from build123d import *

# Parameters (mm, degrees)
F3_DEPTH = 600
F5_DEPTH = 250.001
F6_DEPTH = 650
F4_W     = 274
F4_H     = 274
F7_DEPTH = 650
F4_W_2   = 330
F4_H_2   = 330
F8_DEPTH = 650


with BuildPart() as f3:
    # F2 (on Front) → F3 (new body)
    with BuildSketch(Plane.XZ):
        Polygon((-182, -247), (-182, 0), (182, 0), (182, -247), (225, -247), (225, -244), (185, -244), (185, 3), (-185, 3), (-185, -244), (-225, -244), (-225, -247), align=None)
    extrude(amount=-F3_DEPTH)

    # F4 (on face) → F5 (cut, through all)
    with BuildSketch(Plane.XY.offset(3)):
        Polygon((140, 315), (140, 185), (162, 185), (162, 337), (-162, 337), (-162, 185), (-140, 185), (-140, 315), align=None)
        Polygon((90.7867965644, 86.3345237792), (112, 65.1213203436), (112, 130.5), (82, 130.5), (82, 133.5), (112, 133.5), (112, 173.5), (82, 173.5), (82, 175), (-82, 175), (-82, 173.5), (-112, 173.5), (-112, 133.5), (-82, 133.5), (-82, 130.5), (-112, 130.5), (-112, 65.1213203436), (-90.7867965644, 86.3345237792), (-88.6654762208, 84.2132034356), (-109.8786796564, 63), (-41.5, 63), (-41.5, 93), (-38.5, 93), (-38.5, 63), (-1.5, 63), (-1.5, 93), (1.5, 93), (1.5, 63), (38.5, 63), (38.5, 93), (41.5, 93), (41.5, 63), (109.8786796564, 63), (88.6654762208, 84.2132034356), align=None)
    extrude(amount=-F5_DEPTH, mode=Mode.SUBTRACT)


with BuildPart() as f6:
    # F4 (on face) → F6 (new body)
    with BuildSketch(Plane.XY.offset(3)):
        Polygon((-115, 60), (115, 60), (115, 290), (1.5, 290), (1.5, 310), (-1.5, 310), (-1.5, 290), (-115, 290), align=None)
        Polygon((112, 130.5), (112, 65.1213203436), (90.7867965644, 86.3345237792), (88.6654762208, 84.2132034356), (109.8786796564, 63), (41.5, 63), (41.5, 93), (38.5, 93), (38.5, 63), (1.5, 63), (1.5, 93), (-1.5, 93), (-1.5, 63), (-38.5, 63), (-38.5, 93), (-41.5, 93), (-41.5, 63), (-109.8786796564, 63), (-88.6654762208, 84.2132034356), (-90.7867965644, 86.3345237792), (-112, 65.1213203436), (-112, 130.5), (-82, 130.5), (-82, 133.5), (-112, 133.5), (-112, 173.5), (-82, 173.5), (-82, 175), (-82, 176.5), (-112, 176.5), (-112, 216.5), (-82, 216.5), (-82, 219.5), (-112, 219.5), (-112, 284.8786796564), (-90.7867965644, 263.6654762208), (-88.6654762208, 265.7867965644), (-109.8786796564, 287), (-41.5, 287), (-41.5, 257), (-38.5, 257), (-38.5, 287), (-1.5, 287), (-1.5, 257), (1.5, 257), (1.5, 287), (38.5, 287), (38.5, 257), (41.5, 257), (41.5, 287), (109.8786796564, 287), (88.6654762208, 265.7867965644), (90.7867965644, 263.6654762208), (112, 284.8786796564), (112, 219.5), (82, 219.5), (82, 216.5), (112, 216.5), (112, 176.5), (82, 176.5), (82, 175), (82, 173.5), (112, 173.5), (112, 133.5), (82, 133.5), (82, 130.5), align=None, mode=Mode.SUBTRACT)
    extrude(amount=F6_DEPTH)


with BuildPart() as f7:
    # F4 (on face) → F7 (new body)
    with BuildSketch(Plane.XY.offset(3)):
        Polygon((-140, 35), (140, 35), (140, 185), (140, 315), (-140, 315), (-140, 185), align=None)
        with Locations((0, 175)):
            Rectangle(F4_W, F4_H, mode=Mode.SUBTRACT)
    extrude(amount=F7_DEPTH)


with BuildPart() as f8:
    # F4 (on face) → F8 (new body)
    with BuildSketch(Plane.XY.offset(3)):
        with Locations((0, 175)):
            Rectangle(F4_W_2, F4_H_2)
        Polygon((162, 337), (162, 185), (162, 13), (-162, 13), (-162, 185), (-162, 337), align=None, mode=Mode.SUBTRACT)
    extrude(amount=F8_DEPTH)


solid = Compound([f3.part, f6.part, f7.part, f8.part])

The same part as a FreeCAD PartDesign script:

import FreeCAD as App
import Part
import Sketcher

V = App.Vector

doc = App.newDocument("Part")
body = doc.addObject("PartDesign::Body", "Body")

# Sketch on XZ plane
sketch1 = body.newObject("Sketcher::SketchObject", "Sketch")
sketch1.AttachmentSupport = (doc.getObject("XZ_Plane"), [""])
sketch1.MapMode = "FlatFace"
sketch1.addGeometry(Part.LineSegment(V(-182, -247, 0), V(-182, 0, 0)), False)
sketch1.addGeometry(Part.LineSegment(V(-182, 0, 0), V(182, 0, 0)), False)
sketch1.addGeometry(Part.LineSegment(V(182, 0, 0), V(182, -247, 0)), False)
sketch1.addGeometry(Part.LineSegment(V(182, -247, 0), V(225, -247, 0)), False)
sketch1.addGeometry(Part.LineSegment(V(225, -247, 0), V(225, -244, 0)), False)
sketch1.addGeometry(Part.LineSegment(V(225, -244, 0), V(185, -244, 0)), False)
sketch1.addGeometry(Part.LineSegment(V(185, -244, 0), V(185, 3, 0)), False)
sketch1.addGeometry(Part.LineSegment(V(185, 3, 0), V(-185, 3, 0)), False)
sketch1.addGeometry(Part.LineSegment(V(-185, 3, 0), V(-185, -244, 0)), False)
sketch1.addGeometry(Part.LineSegment(V(-185, -244, 0), V(-225, -244, 0)), False)
sketch1.addGeometry(Part.LineSegment(V(-225, -244, 0), V(-225, -247, 0)), False)
sketch1.addGeometry(Part.LineSegment(V(-225, -247, 0), V(-182, -247, 0)), False)
sketch1.addConstraint(Sketcher.Constraint("Coincident", 0, 2, 1, 1))
sketch1.addConstraint(Sketcher.Constraint("Coincident", 1, 2, 2, 1))
sketch1.addConstraint(Sketcher.Constraint("Coincident", 2, 2, 3, 1))
sketch1.addConstraint(Sketcher.Constraint("Coincident", 3, 2, 4, 1))
sketch1.addConstraint(Sketcher.Constraint("Coincident", 4, 2, 5, 1))
sketch1.addConstraint(Sketcher.Constraint("Coincident", 5, 2, 6, 1))
sketch1.addConstraint(Sketcher.Constraint("Coincident", 6, 2, 7, 1))
sketch1.addConstraint(Sketcher.Constraint("Coincident", 7, 2, 8, 1))
sketch1.addConstraint(Sketcher.Constraint("Coincident", 8, 2, 9, 1))
sketch1.addConstraint(Sketcher.Constraint("Coincident", 9, 2, 10, 1))
sketch1.addConstraint(Sketcher.Constraint("Coincident", 10, 2, 11, 1))
sketch1.addConstraint(Sketcher.Constraint("Coincident", 11, 2, 0, 1))
sketch1.addConstraint(Sketcher.Constraint("Vertical", 0))
sketch1.addConstraint(Sketcher.Constraint("Horizontal", 1))
sketch1.addConstraint(Sketcher.Constraint("Vertical", 2))
sketch1.addConstraint(Sketcher.Constraint("Horizontal", 3))
sketch1.addConstraint(Sketcher.Constraint("Vertical", 4))
sketch1.addConstraint(Sketcher.Constraint("Horizontal", 5))
sketch1.addConstraint(Sketcher.Constraint("Vertical", 6))
sketch1.addConstraint(Sketcher.Constraint("Horizontal", 7))
sketch1.addConstraint(Sketcher.Constraint("Vertical", 8))
sketch1.addConstraint(Sketcher.Constraint("Horizontal", 9))
sketch1.addConstraint(Sketcher.Constraint("Vertical", 10))
sketch1.addConstraint(Sketcher.Constraint("Horizontal", 11))
sketch1.addConstraint(Sketcher.Constraint("Symmetric", 0, 2, 1, 2, -1, 1))
sketch1.addConstraint(Sketcher.Constraint("Symmetric", 5, 2, 8, 2, -2))
sketch1.addConstraint(Sketcher.Constraint("Symmetric", 3, 2, 10, 2, -2))
sketch1.addConstraint(Sketcher.Constraint("Equal", 2, 6))
sketch1.addConstraint(Sketcher.Constraint("DistanceX", 1, 1, 1, 2, 364.0))
sketch1.addConstraint(Sketcher.Constraint("DistanceX", 3, 1, 3, 2, 43.0))
sketch1.addConstraint(Sketcher.Constraint("DistanceX", 5, 2, 5, 1, 40.0))
sketch1.addConstraint(Sketcher.Constraint("DistanceY", 0, 1, 0, 2, 247.0))
sketch1.addConstraint(Sketcher.Constraint("DistanceY", 4, 1, 4, 2, 3.0))
pad1 = body.newObject("PartDesign::Pad", "Pad")
pad1.Profile = sketch1
pad1.Length = 600
pad1.Reversed = True

# Sketch on XY plane
sketch2 = body.newObject("Sketcher::SketchObject", "Sketch001")
sketch2.AttachmentSupport = (doc.getObject("XY_Plane"), [""])
sketch2.MapMode = "FlatFace"
sketch2.AttachmentOffset = App.Placement(V(0, 0, 3), App.Rotation())
sketch2.addGeometry(Part.LineSegment(V(140, 315, 0), V(140, 185, 0)), False)
sketch2.addGeometry(Part.LineSegment(V(140, 185, 0), V(162, 185, 0)), False)
sketch2.addGeometry(Part.LineSegment(V(162, 185, 0), V(162, 337, 0)), False)
sketch2.addGeometry(Part.LineSegment(V(162, 337, 0), V(-162, 337, 0)), False)
sketch2.addGeometry(Part.LineSegment(V(-162, 337, 0), V(-162, 185, 0)), False)
sketch2.addGeometry(Part.LineSegment(V(-162, 185, 0), V(-140, 185, 0)), False)
sketch2.addGeometry(Part.LineSegment(V(-140, 185, 0), V(-140, 315, 0)), False)
sketch2.addGeometry(Part.LineSegment(V(-140, 315, 0), V(140, 315, 0)), False)
sketch2.addGeometry(Part.LineSegment(V(90.8, 86.3, 0), V(112, 65.1, 0)), False)
sketch2.addGeometry(Part.LineSegment(V(112, 65.1, 0), V(112, 130.5, 0)), False)
sketch2.addGeometry(Part.LineSegment(V(112, 130.5, 0), V(82, 130.5, 0)), False)
sketch2.addGeometry(Part.LineSegment(V(82, 130.5, 0), V(82, 133.5, 0)), False)
sketch2.addGeometry(Part.LineSegment(V(82, 133.5, 0), V(112, 133.5, 0)), False)
sketch2.addGeometry(Part.LineSegment(V(112, 133.5, 0), V(112, 173.5, 0)), False)
sketch2.addGeometry(Part.LineSegment(V(112, 173.5, 0), V(82, 173.5, 0)), False)
sketch2.addGeometry(Part.LineSegment(V(82, 173.5, 0), V(82, 175, 0)), False)
sketch2.addGeometry(Part.LineSegment(V(82, 175, 0), V(-82, 175, 0)), False)
sketch2.addGeometry(Part.LineSegment(V(-82, 175, 0), V(-82, 173.5, 0)), False)
sketch2.addGeometry(Part.LineSegment(V(-82, 173.5, 0), V(-112, 173.5, 0)), False)
sketch2.addGeometry(Part.LineSegment(V(-112, 173.5, 0), V(-112, 133.5, 0)), False)
sketch2.addGeometry(Part.LineSegment(V(-112, 133.5, 0), V(-82, 133.5, 0)), False)
sketch2.addGeometry(Part.LineSegment(V(-82, 133.5, 0), V(-82, 130.5, 0)), False)
sketch2.addGeometry(Part.LineSegment(V(-82, 130.5, 0), V(-112, 130.5, 0)), False)
sketch2.addGeometry(Part.LineSegment(V(-112, 130.5, 0), V(-112, 65.1, 0)), False)
sketch2.addGeometry(Part.LineSegment(V(-112, 65.1, 0), V(-90.8, 86.3, 0)), False)
sketch2.addGeometry(Part.LineSegment(V(-90.8, 86.3, 0), V(-88.7, 84.2, 0)), False)
sketch2.addGeometry(Part.LineSegment(V(-88.7, 84.2, 0), V(-109.9, 63, 0)), False)
sketch2.addGeometry(Part.LineSegment(V(-109.9, 63, 0), V(-41.5, 63, 0)), False)
sketch2.addGeometry(Part.LineSegment(V(-41.5, 63, 0), V(-41.5, 93, 0)), False)
sketch2.addGeometry(Part.LineSegment(V(-41.5, 93, 0), V(-38.5, 93, 0)), False)
sketch2.addGeometry(Part.LineSegment(V(-38.5, 93, 0), V(-38.5, 63, 0)), False)
sketch2.addGeometry(Part.LineSegment(V(-38.5, 63, 0), V(-1.5, 63, 0)), False)
sketch2.addGeometry(Part.LineSegment(V(-1.5, 63, 0), V(-1.5, 93, 0)), False)
sketch2.addGeometry(Part.LineSegment(V(-1.5, 93, 0), V(1.5, 93, 0)), False)
sketch2.addGeometry(Part.LineSegment(V(1.5, 93, 0), V(1.5, 63, 0)), False)
sketch2.addGeometry(Part.LineSegment(V(1.5, 63, 0), V(38.5, 63, 0)), False)
sketch2.addGeometry(Part.LineSegment(V(38.5, 63, 0), V(38.5, 93, 0)), False)
sketch2.addGeometry(Part.LineSegment(V(38.5, 93, 0), V(41.5, 93, 0)), False)
sketch2.addGeometry(Part.LineSegment(V(41.5, 93, 0), V(41.5, 63, 0)), False)
sketch2.addGeometry(Part.LineSegment(V(41.5, 63, 0), V(109.9, 63, 0)), False)
sketch2.addGeometry(Part.LineSegment(V(109.9, 63, 0), V(88.7, 84.2, 0)), False)
sketch2.addGeometry(Part.LineSegment(V(88.7, 84.2, 0), V(90.8, 86.3, 0)), False)
sketch2.addConstraint(Sketcher.Constraint("Coincident", 0, 2, 1, 1))
sketch2.addConstraint(Sketcher.Constraint("Coincident", 1, 2, 2, 1))
sketch2.addConstraint(Sketcher.Constraint("Coincident", 2, 2, 3, 1))
sketch2.addConstraint(Sketcher.Constraint("Coincident", 3, 2, 4, 1))
sketch2.addConstraint(Sketcher.Constraint("Coincident", 4, 2, 5, 1))
sketch2.addConstraint(Sketcher.Constraint("Coincident", 5, 2, 6, 1))
sketch2.addConstraint(Sketcher.Constraint("Coincident", 6, 2, 7, 1))
sketch2.addConstraint(Sketcher.Constraint("Coincident", 7, 2, 0, 1))
sketch2.addConstraint(Sketcher.Constraint("Coincident", 8, 2, 9, 1))
sketch2.addConstraint(Sketcher.Constraint("Coincident", 9, 2, 10, 1))
sketch2.addConstraint(Sketcher.Constraint("Coincident", 10, 2, 11, 1))
sketch2.addConstraint(Sketcher.Constraint("Coincident", 11, 2, 12, 1))
sketch2.addConstraint(Sketcher.Constraint("Coincident", 12, 2, 13, 1))
sketch2.addConstraint(Sketcher.Constraint("Coincident", 13, 2, 14, 1))
sketch2.addConstraint(Sketcher.Constraint("Coincident", 14, 2, 15, 1))
sketch2.addConstraint(Sketcher.Constraint("Coincident", 15, 2, 16, 1))
sketch2.addConstraint(Sketcher.Constraint("Coincident", 16, 2, 17, 1))
sketch2.addConstraint(Sketcher.Constraint("Coincident", 17, 2, 18, 1))
sketch2.addConstraint(Sketcher.Constraint("Coincident", 18, 2, 19, 1))
sketch2.addConstraint(Sketcher.Constraint("Coincident", 19, 2, 20, 1))
sketch2.addConstraint(Sketcher.Constraint("Coincident", 20, 2, 21, 1))
sketch2.addConstraint(Sketcher.Constraint("Coincident", 21, 2, 22, 1))
sketch2.addConstraint(Sketcher.Constraint("Coincident", 22, 2, 23, 1))
sketch2.addConstraint(Sketcher.Constraint("Coincident", 23, 2, 24, 1))
sketch2.addConstraint(Sketcher.Constraint("Coincident", 24, 2, 25, 1))
sketch2.addConstraint(Sketcher.Constraint("Coincident", 25, 2, 26, 1))
sketch2.addConstraint(Sketcher.Constraint("Coincident", 26, 2, 27, 1))
sketch2.addConstraint(Sketcher.Constraint("Coincident", 27, 2, 28, 1))
sketch2.addConstraint(Sketcher.Constraint("Coincident", 28, 2, 29, 1))
sketch2.addConstraint(Sketcher.Constraint("Coincident", 29, 2, 30, 1))
sketch2.addConstraint(Sketcher.Constraint("Coincident", 30, 2, 31, 1))
sketch2.addConstraint(Sketcher.Constraint("Coincident", 31, 2, 32, 1))
sketch2.addConstraint(Sketcher.Constraint("Coincident", 32, 2, 33, 1))
sketch2.addConstraint(Sketcher.Constraint("Coincident", 33, 2, 34, 1))
sketch2.addConstraint(Sketcher.Constraint("Coincident", 34, 2, 35, 1))
sketch2.addConstraint(Sketcher.Constraint("Coincident", 35, 2, 36, 1))
sketch2.addConstraint(Sketcher.Constraint("Coincident", 36, 2, 37, 1))
sketch2.addConstraint(Sketcher.Constraint("Coincident", 37, 2, 38, 1))
sketch2.addConstraint(Sketcher.Constraint("Coincident", 38, 2, 39, 1))
sketch2.addConstraint(Sketcher.Constraint("Coincident", 39, 2, 40, 1))
sketch2.addConstraint(Sketcher.Constraint("Coincident", 40, 2, 41, 1))
sketch2.addConstraint(Sketcher.Constraint("Coincident", 41, 2, 8, 1))
sketch2.addConstraint(Sketcher.Constraint("Vertical", 0))
sketch2.addConstraint(Sketcher.Constraint("Horizontal", 1))
sketch2.addConstraint(Sketcher.Constraint("Vertical", 2))
sketch2.addConstraint(Sketcher.Constraint("Horizontal", 3))
sketch2.addConstraint(Sketcher.Constraint("Vertical", 4))
sketch2.addConstraint(Sketcher.Constraint("Horizontal", 5))
sketch2.addConstraint(Sketcher.Constraint("Vertical", 6))
sketch2.addConstraint(Sketcher.Constraint("Horizontal", 7))
sketch2.addConstraint(Sketcher.Constraint("Vertical", 9))
sketch2.addConstraint(Sketcher.Constraint("Horizontal", 10))
sketch2.addConstraint(Sketcher.Constraint("Vertical", 11))
sketch2.addConstraint(Sketcher.Constraint("Horizontal", 12))
sketch2.addConstraint(Sketcher.Constraint("Vertical", 13))
sketch2.addConstraint(Sketcher.Constraint("Horizontal", 14))
sketch2.addConstraint(Sketcher.Constraint("Vertical", 15))
sketch2.addConstraint(Sketcher.Constraint("Horizontal", 16))
sketch2.addConstraint(Sketcher.Constraint("Vertical", 17))
sketch2.addConstraint(Sketcher.Constraint("Horizontal", 18))
sketch2.addConstraint(Sketcher.Constraint("Vertical", 19))
sketch2.addConstraint(Sketcher.Constraint("Horizontal", 20))
sketch2.addConstraint(Sketcher.Constraint("Vertical", 21))
sketch2.addConstraint(Sketcher.Constraint("Horizontal", 22))
sketch2.addConstraint(Sketcher.Constraint("Vertical", 23))
sketch2.addConstraint(Sketcher.Constraint("Horizontal", 27))
sketch2.addConstraint(Sketcher.Constraint("Vertical", 28))
sketch2.addConstraint(Sketcher.Constraint("Horizontal", 29))
sketch2.addConstraint(Sketcher.Constraint("Vertical", 30))
sketch2.addConstraint(Sketcher.Constraint("Horizontal", 31))
sketch2.addConstraint(Sketcher.Constraint("Vertical", 32))
sketch2.addConstraint(Sketcher.Constraint("Horizontal", 33))
sketch2.addConstraint(Sketcher.Constraint("Vertical", 34))
sketch2.addConstraint(Sketcher.Constraint("Horizontal", 35))
sketch2.addConstraint(Sketcher.Constraint("Vertical", 36))
sketch2.addConstraint(Sketcher.Constraint("Horizontal", 37))
sketch2.addConstraint(Sketcher.Constraint("Vertical", 38))
sketch2.addConstraint(Sketcher.Constraint("Horizontal", 39))
sketch2.addConstraint(Sketcher.Constraint("Symmetric", 1, 2, 4, 2, -2))
sketch2.addConstraint(Sketcher.Constraint("Symmetric", 14, 2, 17, 2, -2))
sketch2.addConstraint(Sketcher.Constraint("Symmetric", 12, 2, 19, 2, -2))
sketch2.addConstraint(Sketcher.Constraint("Symmetric", 10, 2, 21, 2, -2))
sketch2.addConstraint(Sketcher.Constraint("Symmetric", 8, 2, 23, 2, -2))
sketch2.addConstraint(Sketcher.Constraint("Symmetric", 31, 2, 34, 2, -2))
sketch2.addConstraint(Sketcher.Constraint("Symmetric", 29, 2, 36, 2, -2))
sketch2.addConstraint(Sketcher.Constraint("Symmetric", 27, 2, 38, 2, -2))
sketch2.addConstraint(Sketcher.Constraint("Symmetric", 25, 2, 40, 2, -2))
sketch2.addConstraint(Sketcher.Constraint("Symmetric", 24, 2, 41, 2, -2))
sketch2.addConstraint(Sketcher.Constraint("Perpendicular", 8, 24))
sketch2.addConstraint(Sketcher.Constraint("Perpendicular", 24, 25))
sketch2.addConstraint(Sketcher.Constraint("Perpendicular", 25, 26))
sketch2.addConstraint(Sketcher.Constraint("Perpendicular", 26, 40))
sketch2.addConstraint(Sketcher.Constraint("Horizontal", 27, 2, 30, 2))
sketch2.addConstraint(Sketcher.Constraint("Horizontal", 29, 2, 32, 2))
sketch2.addConstraint(Sketcher.Constraint("Vertical", 9, 2, 12, 2))
sketch2.addConstraint(Sketcher.Constraint("Vertical", 11, 2, 14, 2))
sketch2.addConstraint(Sketcher.Constraint("Equal", 1, 5))
sketch2.addConstraint(Sketcher.Constraint("Equal", 29, 33))
sketch2.addConstraint(Sketcher.Constraint("Equal", 37, 11))
sketch2.addConstraint(Sketcher.Constraint("Equal", 22, 28))
sketch2.addConstraint(Sketcher.Constraint("Equal", 24, 26))
sketch2.addConstraint(Sketcher.Constraint("DistanceX", 1, 1, 1, 2, 22.0))
sketch2.addConstraint(Sketcher.Constraint("DistanceX", 3, 2, 3, 1, 324.0))
sketch2.addConstraint(Sketcher.Constraint("DistanceX", 10, 2, 10, 1, 30.0))
sketch2.addConstraint(Sketcher.Constraint("DistanceX", 16, 2, 16, 1, 164.0))
sketch2.addConstraint(Sketcher.Constraint("DistanceX", 29, 1, 29, 2, 3.0))
sketch2.addConstraint(Sketcher.Constraint("DistanceX", 31, 1, 31, 2, 37.0))
sketch2.addConstraint(Sketcher.Constraint("DistanceY", 0, 2, 0, 1, 130.0))
sketch2.addConstraint(Sketcher.Constraint("DistanceY", 2, 1, 2, 2, 152.0))
sketch2.addConstraint(Sketcher.Constraint("DistanceY", 13, 1, 13, 2, 40.0))
sketch2.addConstraint(Sketcher.Constraint("Distance", 8, 30.0))
sketch2.addConstraint(Sketcher.Constraint("Distance", 25, 3.0))
sketch2.addConstraint(Sketcher.Constraint("DistanceY", 15, 1, 15, 2, 1.5))
sketch2.addConstraint(Sketcher.Constraint("DistanceY", -1, 1, 0, 2, 185.0))
sketch2.addConstraint(Sketcher.Constraint("DistanceY", -1, 1, 15, 2, 175.0))
sketch2.addConstraint(Sketcher.Constraint("DistanceY", -1, 1, 26, 2, 63.0))
pocket1 = body.newObject("PartDesign::Pocket", "Pocket")
pocket1.Profile = sketch2
pocket1.Type = "ThroughAll"
body2 = doc.addObject("PartDesign::Body", "Body001")

# Sketch on XY plane
sketch3 = body2.newObject("Sketcher::SketchObject", "Sketch002")
sketch3.AttachmentSupport = (doc.getObject("XY_Plane001"), [""])
sketch3.MapMode = "FlatFace"
sketch3.AttachmentOffset = App.Placement(V(0, 0, 3), App.Rotation())
sketch3.addGeometry(Part.LineSegment(V(-115, 60, 0), V(115, 60, 0)), False)
sketch3.addGeometry(Part.LineSegment(V(115, 60, 0), V(115, 290, 0)), False)
sketch3.addGeometry(Part.LineSegment(V(115, 290, 0), V(1.5, 290, 0)), False)
sketch3.addGeometry(Part.LineSegment(V(1.5, 290, 0), V(1.5, 310, 0)), False)
sketch3.addGeometry(Part.LineSegment(V(1.5, 310, 0), V(-1.5, 310, 0)), False)
sketch3.addGeometry(Part.LineSegment(V(-1.5, 310, 0), V(-1.5, 290, 0)), False)
sketch3.addGeometry(Part.LineSegment(V(-1.5, 290, 0), V(-115, 290, 0)), False)
sketch3.addGeometry(Part.LineSegment(V(-115, 290, 0), V(-115, 60, 0)), False)
sketch3.addGeometry(Part.LineSegment(V(82, 130.5, 0), V(112, 130.5, 0)), False)
sketch3.addGeometry(Part.LineSegment(V(112, 130.5, 0), V(112, 65.1, 0)), False)
sketch3.addGeometry(Part.LineSegment(V(112, 65.1, 0), V(90.8, 86.3, 0)), False)
sketch3.addGeometry(Part.LineSegment(V(90.8, 86.3, 0), V(88.7, 84.2, 0)), False)
sketch3.addGeometry(Part.LineSegment(V(88.7, 84.2, 0), V(109.9, 63, 0)), False)
sketch3.addGeometry(Part.LineSegment(V(109.9, 63, 0), V(41.5, 63, 0)), False)
sketch3.addGeometry(Part.LineSegment(V(41.5, 63, 0), V(41.5, 93, 0)), False)
sketch3.addGeometry(Part.LineSegment(V(41.5, 93, 0), V(38.5, 93, 0)), False)
sketch3.addGeometry(Part.LineSegment(V(38.5, 93, 0), V(38.5, 63, 0)), False)
sketch3.addGeometry(Part.LineSegment(V(38.5, 63, 0), V(1.5, 63, 0)), False)
sketch3.addGeometry(Part.LineSegment(V(1.5, 63, 0), V(1.5, 93, 0)), False)
sketch3.addGeometry(Part.LineSegment(V(1.5, 93, 0), V(-1.5, 93, 0)), False)
sketch3.addGeometry(Part.LineSegment(V(-1.5, 93, 0), V(-1.5, 63, 0)), False)
sketch3.addGeometry(Part.LineSegment(V(-1.5, 63, 0), V(-38.5, 63, 0)), False)
sketch3.addGeometry(Part.LineSegment(V(-38.5, 63, 0), V(-38.5, 93, 0)), False)
sketch3.addGeometry(Part.LineSegment(V(-38.5, 93, 0), V(-41.5, 93, 0)), False)
sketch3.addGeometry(Part.LineSegment(V(-41.5, 93, 0), V(-41.5, 63, 0)), False)
sketch3.addGeometry(Part.LineSegment(V(-41.5, 63, 0), V(-109.9, 63, 0)), False)
sketch3.addGeometry(Part.LineSegment(V(-109.9, 63, 0), V(-88.7, 84.2, 0)), False)
sketch3.addGeometry(Part.LineSegment(V(-88.7, 84.2, 0), V(-90.8, 86.3, 0)), False)
sketch3.addGeometry(Part.LineSegment(V(-90.8, 86.3, 0), V(-112, 65.1, 0)), False)
sketch3.addGeometry(Part.LineSegment(V(-112, 65.1, 0), V(-112, 130.5, 0)), False)
sketch3.addGeometry(Part.LineSegment(V(-112, 130.5, 0), V(-82, 130.5, 0)), False)
sketch3.addGeometry(Part.LineSegment(V(-82, 130.5, 0), V(-82, 133.5, 0)), False)
sketch3.addGeometry(Part.LineSegment(V(-82, 133.5, 0), V(-112, 133.5, 0)), False)
sketch3.addGeometry(Part.LineSegment(V(-112, 133.5, 0), V(-112, 173.5, 0)), False)
sketch3.addGeometry(Part.LineSegment(V(-112, 173.5, 0), V(-82, 173.5, 0)), False)
sketch3.addGeometry(Part.LineSegment(V(-82, 173.5, 0), V(-82, 176.5, 0)), False)
sketch3.addGeometry(Part.LineSegment(V(-82, 176.5, 0), V(-112, 176.5, 0)), False)
sketch3.addGeometry(Part.LineSegment(V(-112, 176.5, 0), V(-112, 216.5, 0)), False)
sketch3.addGeometry(Part.LineSegment(V(-112, 216.5, 0), V(-82, 216.5, 0)), False)
sketch3.addGeometry(Part.LineSegment(V(-82, 216.5, 0), V(-82, 219.5, 0)), False)
sketch3.addGeometry(Part.LineSegment(V(-82, 219.5, 0), V(-112, 219.5, 0)), False)
sketch3.addGeometry(Part.LineSegment(V(-112, 219.5, 0), V(-112, 284.9, 0)), False)
sketch3.addGeometry(Part.LineSegment(V(-112, 284.9, 0), V(-90.8, 263.7, 0)), False)
sketch3.addGeometry(Part.LineSegment(V(-90.8, 263.7, 0), V(-88.7, 265.8, 0)), False)
sketch3.addGeometry(Part.LineSegment(V(-88.7, 265.8, 0), V(-109.9, 287, 0)), False)
sketch3.addGeometry(Part.LineSegment(V(-109.9, 287, 0), V(-41.5, 287, 0)), False)
sketch3.addGeometry(Part.LineSegment(V(-41.5, 287, 0), V(-41.5, 257, 0)), False)
sketch3.addGeometry(Part.LineSegment(V(-41.5, 257, 0), V(-38.5, 257, 0)), False)
sketch3.addGeometry(Part.LineSegment(V(-38.5, 257, 0), V(-38.5, 287, 0)), False)
sketch3.addGeometry(Part.LineSegment(V(-38.5, 287, 0), V(-1.5, 287, 0)), False)
sketch3.addGeometry(Part.LineSegment(V(-1.5, 287, 0), V(-1.5, 257, 0)), False)
sketch3.addGeometry(Part.LineSegment(V(-1.5, 257, 0), V(1.5, 257, 0)), False)
sketch3.addGeometry(Part.LineSegment(V(1.5, 257, 0), V(1.5, 287, 0)), False)
sketch3.addGeometry(Part.LineSegment(V(1.5, 287, 0), V(38.5, 287, 0)), False)
sketch3.addGeometry(Part.LineSegment(V(38.5, 287, 0), V(38.5, 257, 0)), False)
sketch3.addGeometry(Part.LineSegment(V(38.5, 257, 0), V(41.5, 257, 0)), False)
sketch3.addGeometry(Part.LineSegment(V(41.5, 257, 0), V(41.5, 287, 0)), False)
sketch3.addGeometry(Part.LineSegment(V(41.5, 287, 0), V(109.9, 287, 0)), False)
sketch3.addGeometry(Part.LineSegment(V(109.9, 287, 0), V(88.7, 265.8, 0)), False)
sketch3.addGeometry(Part.LineSegment(V(88.7, 265.8, 0), V(90.8, 263.7, 0)), False)
sketch3.addGeometry(Part.LineSegment(V(90.8, 263.7, 0), V(112, 284.9, 0)), False)
sketch3.addGeometry(Part.LineSegment(V(112, 284.9, 0), V(112, 219.5, 0)), False)
sketch3.addGeometry(Part.LineSegment(V(112, 219.5, 0), V(82, 219.5, 0)), False)
sketch3.addGeometry(Part.LineSegment(V(82, 219.5, 0), V(82, 216.5, 0)), False)
sketch3.addGeometry(Part.LineSegment(V(82, 216.5, 0), V(112, 216.5, 0)), False)
sketch3.addGeometry(Part.LineSegment(V(112, 216.5, 0), V(112, 176.5, 0)), False)
sketch3.addGeometry(Part.LineSegment(V(112, 176.5, 0), V(82, 176.5, 0)), False)
sketch3.addGeometry(Part.LineSegment(V(82, 176.5, 0), V(82, 173.5, 0)), False)
sketch3.addGeometry(Part.LineSegment(V(82, 173.5, 0), V(112, 173.5, 0)), False)
sketch3.addGeometry(Part.LineSegment(V(112, 173.5, 0), V(112, 133.5, 0)), False)
sketch3.addGeometry(Part.LineSegment(V(112, 133.5, 0), V(82, 133.5, 0)), False)
sketch3.addGeometry(Part.LineSegment(V(82, 133.5, 0), V(82, 130.5, 0)), False)
sketch3.addConstraint(Sketcher.Constraint("Coincident", 0, 2, 1, 1))
sketch3.addConstraint(Sketcher.Constraint("Coincident", 1, 2, 2, 1))
sketch3.addConstraint(Sketcher.Constraint("Coincident", 2, 2, 3, 1))
sketch3.addConstraint(Sketcher.Constraint("Coincident", 3, 2, 4, 1))
sketch3.addConstraint(Sketcher.Constraint("Coincident", 4, 2, 5, 1))
sketch3.addConstraint(Sketcher.Constraint("Coincident", 5, 2, 6, 1))
sketch3.addConstraint(Sketcher.Constraint("Coincident", 6, 2, 7, 1))
sketch3.addConstraint(Sketcher.Constraint("Coincident", 7, 2, 0, 1))
sketch3.addConstraint(Sketcher.Constraint("Coincident", 8, 2, 9, 1))
sketch3.addConstraint(Sketcher.Constraint("Coincident", 9, 2, 10, 1))
sketch3.addConstraint(Sketcher.Constraint("Coincident", 10, 2, 11, 1))
sketch3.addConstraint(Sketcher.Constraint("Coincident", 11, 2, 12, 1))
sketch3.addConstraint(Sketcher.Constraint("Coincident", 12, 2, 13, 1))
sketch3.addConstraint(Sketcher.Constraint("Coincident", 13, 2, 14, 1))
sketch3.addConstraint(Sketcher.Constraint("Coincident", 14, 2, 15, 1))
sketch3.addConstraint(Sketcher.Constraint("Coincident", 15, 2, 16, 1))
sketch3.addConstraint(Sketcher.Constraint("Coincident", 16, 2, 17, 1))
sketch3.addConstraint(Sketcher.Constraint("Coincident", 17, 2, 18, 1))
sketch3.addConstraint(Sketcher.Constraint("Coincident", 18, 2, 19, 1))
sketch3.addConstraint(Sketcher.Constraint("Coincident", 19, 2, 20, 1))
sketch3.addConstraint(Sketcher.Constraint("Coincident", 20, 2, 21, 1))
sketch3.addConstraint(Sketcher.Constraint("Coincident", 21, 2, 22, 1))
sketch3.addConstraint(Sketcher.Constraint("Coincident", 22, 2, 23, 1))
sketch3.addConstraint(Sketcher.Constraint("Coincident", 23, 2, 24, 1))
sketch3.addConstraint(Sketcher.Constraint("Coincident", 24, 2, 25, 1))
sketch3.addConstraint(Sketcher.Constraint("Coincident", 25, 2, 26, 1))
sketch3.addConstraint(Sketcher.Constraint("Coincident", 26, 2, 27, 1))
sketch3.addConstraint(Sketcher.Constraint("Coincident", 27, 2, 28, 1))
sketch3.addConstraint(Sketcher.Constraint("Coincident", 28, 2, 29, 1))
sketch3.addConstraint(Sketcher.Constraint("Coincident", 29, 2, 30, 1))
sketch3.addConstraint(Sketcher.Constraint("Coincident", 30, 2, 31, 1))
sketch3.addConstraint(Sketcher.Constraint("Coincident", 31, 2, 32, 1))
sketch3.addConstraint(Sketcher.Constraint("Coincident", 32, 2, 33, 1))
sketch3.addConstraint(Sketcher.Constraint("Coincident", 33, 2, 34, 1))
sketch3.addConstraint(Sketcher.Constraint("Coincident", 34, 2, 35, 1))
sketch3.addConstraint(Sketcher.Constraint("Coincident", 35, 2, 36, 1))
sketch3.addConstraint(Sketcher.Constraint("Coincident", 36, 2, 37, 1))
sketch3.addConstraint(Sketcher.Constraint("Coincident", 37, 2, 38, 1))
sketch3.addConstraint(Sketcher.Constraint("Coincident", 38, 2, 39, 1))
sketch3.addConstraint(Sketcher.Constraint("Coincident", 39, 2, 40, 1))
sketch3.addConstraint(Sketcher.Constraint("Coincident", 40, 2, 41, 1))
sketch3.addConstraint(Sketcher.Constraint("Coincident", 41, 2, 42, 1))
sketch3.addConstraint(Sketcher.Constraint("Coincident", 42, 2, 43, 1))
sketch3.addConstraint(Sketcher.Constraint("Coincident", 43, 2, 44, 1))
sketch3.addConstraint(Sketcher.Constraint("Coincident", 44, 2, 45, 1))
sketch3.addConstraint(Sketcher.Constraint("Coincident", 45, 2, 46, 1))
sketch3.addConstraint(Sketcher.Constraint("Coincident", 46, 2, 47, 1))
sketch3.addConstraint(Sketcher.Constraint("Coincident", 47, 2, 48, 1))
sketch3.addConstraint(Sketcher.Constraint("Coincident", 48, 2, 49, 1))
sketch3.addConstraint(Sketcher.Constraint("Coincident", 49, 2, 50, 1))
sketch3.addConstraint(Sketcher.Constraint("Coincident", 50, 2, 51, 1))
sketch3.addConstraint(Sketcher.Constraint("Coincident", 51, 2, 52, 1))
sketch3.addConstraint(Sketcher.Constraint("Coincident", 52, 2, 53, 1))
sketch3.addConstraint(Sketcher.Constraint("Coincident", 53, 2, 54, 1))
sketch3.addConstraint(Sketcher.Constraint("Coincident", 54, 2, 55, 1))
sketch3.addConstraint(Sketcher.Constraint("Coincident", 55, 2, 56, 1))
sketch3.addConstraint(Sketcher.Constraint("Coincident", 56, 2, 57, 1))
sketch3.addConstraint(Sketcher.Constraint("Coincident", 57, 2, 58, 1))
sketch3.addConstraint(Sketcher.Constraint("Coincident", 58, 2, 59, 1))
sketch3.addConstraint(Sketcher.Constraint("Coincident", 59, 2, 60, 1))
sketch3.addConstraint(Sketcher.Constraint("Coincident", 60, 2, 61, 1))
sketch3.addConstraint(Sketcher.Constraint("Coincident", 61, 2, 62, 1))
sketch3.addConstraint(Sketcher.Constraint("Coincident", 62, 2, 63, 1))
sketch3.addConstraint(Sketcher.Constraint("Coincident", 63, 2, 64, 1))
sketch3.addConstraint(Sketcher.Constraint("Coincident", 64, 2, 65, 1))
sketch3.addConstraint(Sketcher.Constraint("Coincident", 65, 2, 66, 1))
sketch3.addConstraint(Sketcher.Constraint("Coincident", 66, 2, 67, 1))
sketch3.addConstraint(Sketcher.Constraint("Coincident", 67, 2, 68, 1))
sketch3.addConstraint(Sketcher.Constraint("Coincident", 68, 2, 69, 1))
sketch3.addConstraint(Sketcher.Constraint("Coincident", 69, 2, 70, 1))
sketch3.addConstraint(Sketcher.Constraint("Coincident", 70, 2, 71, 1))
sketch3.addConstraint(Sketcher.Constraint("Coincident", 71, 2, 8, 1))
sketch3.addConstraint(Sketcher.Constraint("Horizontal", 0))
sketch3.addConstraint(Sketcher.Constraint("Vertical", 1))
sketch3.addConstraint(Sketcher.Constraint("Horizontal", 2))
sketch3.addConstraint(Sketcher.Constraint("Vertical", 3))
sketch3.addConstraint(Sketcher.Constraint("Horizontal", 4))
sketch3.addConstraint(Sketcher.Constraint("Vertical", 5))
sketch3.addConstraint(Sketcher.Constraint("Horizontal", 6))
sketch3.addConstraint(Sketcher.Constraint("Vertical", 7))
sketch3.addConstraint(Sketcher.Constraint("Horizontal", 8))
sketch3.addConstraint(Sketcher.Constraint("Vertical", 9))
sketch3.addConstraint(Sketcher.Constraint("Horizontal", 13))
sketch3.addConstraint(Sketcher.Constraint("Vertical", 14))
sketch3.addConstraint(Sketcher.Constraint("Horizontal", 15))
sketch3.addConstraint(Sketcher.Constraint("Vertical", 16))
sketch3.addConstraint(Sketcher.Constraint("Horizontal", 17))
sketch3.addConstraint(Sketcher.Constraint("Vertical", 18))
sketch3.addConstraint(Sketcher.Constraint("Horizontal", 19))
sketch3.addConstraint(Sketcher.Constraint("Vertical", 20))
sketch3.addConstraint(Sketcher.Constraint("Horizontal", 21))
sketch3.addConstraint(Sketcher.Constraint("Vertical", 22))
sketch3.addConstraint(Sketcher.Constraint("Horizontal", 23))
sketch3.addConstraint(Sketcher.Constraint("Vertical", 24))
sketch3.addConstraint(Sketcher.Constraint("Horizontal", 25))
sketch3.addConstraint(Sketcher.Constraint("Vertical", 29))
sketch3.addConstraint(Sketcher.Constraint("Horizontal", 30))
sketch3.addConstraint(Sketcher.Constraint("Vertical", 31))
sketch3.addConstraint(Sketcher.Constraint("Horizontal", 32))
sketch3.addConstraint(Sketcher.Constraint("Vertical", 33))
sketch3.addConstraint(Sketcher.Constraint("Horizontal", 34))
sketch3.addConstraint(Sketcher.Constraint("Vertical", 35))
sketch3.addConstraint(Sketcher.Constraint("Horizontal", 36))
sketch3.addConstraint(Sketcher.Constraint("Vertical", 37))
sketch3.addConstraint(Sketcher.Constraint("Horizontal", 38))
sketch3.addConstraint(Sketcher.Constraint("Vertical", 39))
sketch3.addConstraint(Sketcher.Constraint("Horizontal", 40))
sketch3.addConstraint(Sketcher.Constraint("Vertical", 41))
sketch3.addConstraint(Sketcher.Constraint("Horizontal", 45))
sketch3.addConstraint(Sketcher.Constraint("Vertical", 46))
sketch3.addConstraint(Sketcher.Constraint("Horizontal", 47))
sketch3.addConstraint(Sketcher.Constraint("Vertical", 48))
sketch3.addConstraint(Sketcher.Constraint("Horizontal", 49))
sketch3.addConstraint(Sketcher.Constraint("Vertical", 50))
sketch3.addConstraint(Sketcher.Constraint("Horizontal", 51))
sketch3.addConstraint(Sketcher.Constraint("Vertical", 52))
sketch3.addConstraint(Sketcher.Constraint("Horizontal", 53))
sketch3.addConstraint(Sketcher.Constraint("Vertical", 54))
sketch3.addConstraint(Sketcher.Constraint("Horizontal", 55))
sketch3.addConstraint(Sketcher.Constraint("Vertical", 56))
sketch3.addConstraint(Sketcher.Constraint("Horizontal", 57))
sketch3.addConstraint(Sketcher.Constraint("Vertical", 61))
sketch3.addConstraint(Sketcher.Constraint("Horizontal", 62))
sketch3.addConstraint(Sketcher.Constraint("Vertical", 63))
sketch3.addConstraint(Sketcher.Constraint("Horizontal", 64))
sketch3.addConstraint(Sketcher.Constraint("Vertical", 65))
sketch3.addConstraint(Sketcher.Constraint("Horizontal", 66))
sketch3.addConstraint(Sketcher.Constraint("Vertical", 67))
sketch3.addConstraint(Sketcher.Constraint("Horizontal", 68))
sketch3.addConstraint(Sketcher.Constraint("Vertical", 69))
sketch3.addConstraint(Sketcher.Constraint("Horizontal", 70))
sketch3.addConstraint(Sketcher.Constraint("Vertical", 71))
sketch3.addConstraint(Sketcher.Constraint("Symmetric", 2, 2, 5, 2, -2))
sketch3.addConstraint(Sketcher.Constraint("Symmetric", 17, 2, 20, 2, -2))
sketch3.addConstraint(Sketcher.Constraint("Symmetric", 15, 2, 22, 2, -2))
sketch3.addConstraint(Sketcher.Constraint("Symmetric", 13, 2, 24, 2, -2))
sketch3.addConstraint(Sketcher.Constraint("Symmetric", 11, 2, 26, 2, -2))
sketch3.addConstraint(Sketcher.Constraint("Symmetric", 10, 2, 27, 2, -2))
sketch3.addConstraint(Sketcher.Constraint("Symmetric", 9, 2, 28, 2, -2))
sketch3.addConstraint(Sketcher.Constraint("Symmetric", 49, 2, 52, 2, -2))
sketch3.addConstraint(Sketcher.Constraint("Symmetric", 47, 2, 54, 2, -2))
sketch3.addConstraint(Sketcher.Constraint("Symmetric", 45, 2, 56, 2, -2))
sketch3.addConstraint(Sketcher.Constraint("Symmetric", 43, 2, 58, 2, -2))
sketch3.addConstraint(Sketcher.Constraint("Symmetric", 42, 2, 59, 2, -2))
sketch3.addConstraint(Sketcher.Constraint("Symmetric", 41, 2, 60, 2, -2))
sketch3.addConstraint(Sketcher.Constraint("Symmetric", 39, 2, 62, 2, -2))
sketch3.addConstraint(Sketcher.Constraint("Symmetric", 37, 2, 64, 2, -2))
sketch3.addConstraint(Sketcher.Constraint("Symmetric", 35, 2, 66, 2, -2))
sketch3.addConstraint(Sketcher.Constraint("Symmetric", 33, 2, 68, 2, -2))
sketch3.addConstraint(Sketcher.Constraint("Symmetric", 31, 2, 70, 2, -2))
sketch3.addConstraint(Sketcher.Constraint("Perpendicular", 10, 11))
sketch3.addConstraint(Sketcher.Constraint("Perpendicular", 11, 12))
sketch3.addConstraint(Sketcher.Constraint("Perpendicular", 12, 26))
sketch3.addConstraint(Sketcher.Constraint("Perpendicular", 26, 27))
sketch3.addConstraint(Sketcher.Constraint("Perpendicular", 28, 42))
sketch3.addConstraint(Sketcher.Constraint("Perpendicular", 42, 43))
sketch3.addConstraint(Sketcher.Constraint("Perpendicular", 43, 44))
sketch3.addConstraint(Sketcher.Constraint("Perpendicular", 44, 58))
sketch3.addConstraint(Sketcher.Constraint("Horizontal", 13, 2, 16, 2))
sketch3.addConstraint(Sketcher.Constraint("Horizontal", 15, 2, 18, 2))
sketch3.addConstraint(Sketcher.Constraint("Horizontal", 8, 2, 29, 2))
sketch3.addConstraint(Sketcher.Constraint("Horizontal", 45, 2, 48, 2))
sketch3.addConstraint(Sketcher.Constraint("Horizontal", 47, 2, 50, 2))
sketch3.addConstraint(Sketcher.Constraint("Vertical", 3, 2, 17, 2))
sketch3.addConstraint(Sketcher.Constraint("Vertical", 29, 2, 32, 2))
sketch3.addConstraint(Sketcher.Constraint("Vertical", 31, 2, 34, 2))
sketch3.addConstraint(Sketcher.Constraint("Vertical", 33, 2, 36, 2))
sketch3.addConstraint(Sketcher.Constraint("Vertical", 35, 2, 38, 2))
sketch3.addConstraint(Sketcher.Constraint("Vertical", 37, 2, 40, 2))
sketch3.addConstraint(Sketcher.Constraint("Vertical", 27, 2, 42, 2))
sketch3.addConstraint(Sketcher.Constraint("Vertical", 26, 2, 43, 2))
sketch3.addConstraint(Sketcher.Constraint("Vertical", 25, 2, 44, 2))
sketch3.addConstraint(Sketcher.Constraint("Vertical", 24, 2, 45, 2))
sketch3.addConstraint(Sketcher.Constraint("Vertical", 22, 2, 47, 2))
sketch3.addConstraint(Sketcher.Constraint("Vertical", 20, 2, 49, 2))
sketch3.addConstraint(Sketcher.Constraint("Equal", 2, 6))
sketch3.addConstraint(Sketcher.Constraint("Equal", 4, 15))
sketch3.addConstraint(Sketcher.Constraint("Equal", 0, 1))
sketch3.addConstraint(Sketcher.Constraint("Equal", 70, 14))
sketch3.addConstraint(Sketcher.Constraint("Equal", 55, 31))
sketch3.addConstraint(Sketcher.Constraint("Equal", 31, 35))
sketch3.addConstraint(Sketcher.Constraint("Equal", 33, 37))
sketch3.addConstraint(Sketcher.Constraint("Equal", 35, 39))
sketch3.addConstraint(Sketcher.Constraint("Equal", 29, 41))
sketch3.addConstraint(Sketcher.Constraint("Equal", 24, 46))
sketch3.addConstraint(Sketcher.Constraint("Equal", 10, 12))
sketch3.addConstraint(Sketcher.Constraint("DistanceX", 0, 1, 0, 2, 230.0))
sketch3.addConstraint(Sketcher.Constraint("DistanceX", 4, 2, 4, 1, 3.0))
sketch3.addConstraint(Sketcher.Constraint("DistanceX", 8, 1, 8, 2, 30.0))
sketch3.addConstraint(Sketcher.Constraint("DistanceX", 17, 2, 17, 1, 37.0))
sketch3.addConstraint(Sketcher.Constraint("DistanceY", 3, 1, 3, 2, 20.0))
sketch3.addConstraint(Sketcher.Constraint("DistanceY", 33, 1, 33, 2, 40.0))
sketch3.addConstraint(Sketcher.Constraint("Distance", 10, 30.0))
sketch3.addConstraint(Sketcher.Constraint("Distance", 11, 3.0))
sketch3.addConstraint(Sketcher.Constraint("DistanceY", -1, 1, 0, 2, 60.0))
sketch3.addConstraint(Sketcher.Constraint("DistanceX", -1, 1, 8, 2, 112.0))
sketch3.addConstraint(Sketcher.Constraint("DistanceY", -1, 1, 12, 2, 63.0))
sketch3.addConstraint(Sketcher.Constraint("DistanceY", -1, 1, 44, 2, 287.0))
pad2 = body2.newObject("PartDesign::Pad", "Pad001")
pad2.Profile = sketch3
pad2.Length = 650
body3 = doc.addObject("PartDesign::Body", "Body002")

# Sketch on XY plane
sketch4 = body3.newObject("Sketcher::SketchObject", "Sketch003")
sketch4.AttachmentSupport = (doc.getObject("XY_Plane002"), [""])
sketch4.MapMode = "FlatFace"
sketch4.AttachmentOffset = App.Placement(V(0, 0, 3), App.Rotation())
sketch4.addGeometry(Part.LineSegment(V(-140, 35, 0), V(140, 35, 0)), False)
sketch4.addGeometry(Part.LineSegment(V(140, 35, 0), V(140, 315, 0)), False)
sketch4.addGeometry(Part.LineSegment(V(140, 315, 0), V(-140, 315, 0)), False)
sketch4.addGeometry(Part.LineSegment(V(-140, 315, 0), V(-140, 35, 0)), False)
sketch4.addGeometry(Part.LineSegment(V(137, 38, 0), V(-137, 38, 0)), False)
sketch4.addGeometry(Part.LineSegment(V(-137, 38, 0), V(-137, 312, 0)), False)
sketch4.addGeometry(Part.LineSegment(V(-137, 312, 0), V(137, 312, 0)), False)
sketch4.addGeometry(Part.LineSegment(V(137, 312, 0), V(137, 38, 0)), False)
sketch4.addConstraint(Sketcher.Constraint("Coincident", 0, 2, 1, 1))
sketch4.addConstraint(Sketcher.Constraint("Coincident", 1, 2, 2, 1))
sketch4.addConstraint(Sketcher.Constraint("Coincident", 2, 2, 3, 1))
sketch4.addConstraint(Sketcher.Constraint("Coincident", 3, 2, 0, 1))
sketch4.addConstraint(Sketcher.Constraint("Coincident", 4, 2, 5, 1))
sketch4.addConstraint(Sketcher.Constraint("Coincident", 5, 2, 6, 1))
sketch4.addConstraint(Sketcher.Constraint("Coincident", 6, 2, 7, 1))
sketch4.addConstraint(Sketcher.Constraint("Coincident", 7, 2, 4, 1))
sketch4.addConstraint(Sketcher.Constraint("Horizontal", 0))
sketch4.addConstraint(Sketcher.Constraint("Vertical", 1))
sketch4.addConstraint(Sketcher.Constraint("Horizontal", 2))
sketch4.addConstraint(Sketcher.Constraint("Vertical", 3))
sketch4.addConstraint(Sketcher.Constraint("Horizontal", 4))
sketch4.addConstraint(Sketcher.Constraint("Vertical", 5))
sketch4.addConstraint(Sketcher.Constraint("Horizontal", 6))
sketch4.addConstraint(Sketcher.Constraint("Vertical", 7))
sketch4.addConstraint(Sketcher.Constraint("Equal", 2, 1))
sketch4.addConstraint(Sketcher.Constraint("Equal", 6, 5))
sketch4.addConstraint(Sketcher.Constraint("DistanceX", 0, 1, 0, 2, 280.0))
sketch4.addConstraint(Sketcher.Constraint("DistanceX", 4, 2, 4, 1, 274.0))
sketch4.addConstraint(Sketcher.Constraint("DistanceX", -1, 1, 0, 2, 140.0))
sketch4.addConstraint(Sketcher.Constraint("DistanceY", -1, 1, 0, 2, 35.0))
sketch4.addConstraint(Sketcher.Constraint("DistanceX", 4, 2, -1, 1, 137.0))
sketch4.addConstraint(Sketcher.Constraint("DistanceY", -1, 1, 4, 2, 38.0))
pad3 = body3.newObject("PartDesign::Pad", "Pad002")
pad3.Profile = sketch4
pad3.Length = 650
body4 = doc.addObject("PartDesign::Body", "Body003")

# Sketch on XY plane
sketch5 = body4.newObject("Sketcher::SketchObject", "Sketch004")
sketch5.AttachmentSupport = (doc.getObject("XY_Plane003"), [""])
sketch5.MapMode = "FlatFace"
sketch5.AttachmentOffset = App.Placement(V(0, 0, 3), App.Rotation())
sketch5.addGeometry(Part.LineSegment(V(-165, 340, 0), V(-165, 10, 0)), False)
sketch5.addGeometry(Part.LineSegment(V(-165, 10, 0), V(165, 10, 0)), False)
sketch5.addGeometry(Part.LineSegment(V(165, 10, 0), V(165, 340, 0)), False)
sketch5.addGeometry(Part.LineSegment(V(165, 340, 0), V(-165, 340, 0)), False)
sketch5.addGeometry(Part.LineSegment(V(-162, 337, 0), V(162, 337, 0)), False)
sketch5.addGeometry(Part.LineSegment(V(162, 337, 0), V(162, 13, 0)), False)
sketch5.addGeometry(Part.LineSegment(V(162, 13, 0), V(-162, 13, 0)), False)
sketch5.addGeometry(Part.LineSegment(V(-162, 13, 0), V(-162, 337, 0)), False)
sketch5.addConstraint(Sketcher.Constraint("Coincident", 0, 2, 1, 1))
sketch5.addConstraint(Sketcher.Constraint("Coincident", 1, 2, 2, 1))
sketch5.addConstraint(Sketcher.Constraint("Coincident", 2, 2, 3, 1))
sketch5.addConstraint(Sketcher.Constraint("Coincident", 3, 2, 0, 1))
sketch5.addConstraint(Sketcher.Constraint("Coincident", 4, 2, 5, 1))
sketch5.addConstraint(Sketcher.Constraint("Coincident", 5, 2, 6, 1))
sketch5.addConstraint(Sketcher.Constraint("Coincident", 6, 2, 7, 1))
sketch5.addConstraint(Sketcher.Constraint("Coincident", 7, 2, 4, 1))
sketch5.addConstraint(Sketcher.Constraint("Vertical", 0))
sketch5.addConstraint(Sketcher.Constraint("Horizontal", 1))
sketch5.addConstraint(Sketcher.Constraint("Vertical", 2))
sketch5.addConstraint(Sketcher.Constraint("Horizontal", 3))
sketch5.addConstraint(Sketcher.Constraint("Horizontal", 4))
sketch5.addConstraint(Sketcher.Constraint("Vertical", 5))
sketch5.addConstraint(Sketcher.Constraint("Horizontal", 6))
sketch5.addConstraint(Sketcher.Constraint("Vertical", 7))
sketch5.addConstraint(Sketcher.Constraint("Equal", 3, 0))
sketch5.addConstraint(Sketcher.Constraint("Equal", 6, 5))
sketch5.addConstraint(Sketcher.Constraint("DistanceX", 1, 1, 1, 2, 330.0))
sketch5.addConstraint(Sketcher.Constraint("DistanceX", 4, 1, 4, 2, 324.0))
sketch5.addConstraint(Sketcher.Constraint("DistanceX", 0, 2, -1, 1, 165.0))
sketch5.addConstraint(Sketcher.Constraint("DistanceY", -1, 1, 0, 2, 10.0))
sketch5.addConstraint(Sketcher.Constraint("DistanceX", -1, 1, 4, 2, 162.0))
sketch5.addConstraint(Sketcher.Constraint("DistanceY", -1, 1, 4, 2, 337.0))
pad4 = body4.newObject("PartDesign::Pad", "Pad003")
pad4.Profile = sketch5
pad4.Length = 650

doc.recompute()
